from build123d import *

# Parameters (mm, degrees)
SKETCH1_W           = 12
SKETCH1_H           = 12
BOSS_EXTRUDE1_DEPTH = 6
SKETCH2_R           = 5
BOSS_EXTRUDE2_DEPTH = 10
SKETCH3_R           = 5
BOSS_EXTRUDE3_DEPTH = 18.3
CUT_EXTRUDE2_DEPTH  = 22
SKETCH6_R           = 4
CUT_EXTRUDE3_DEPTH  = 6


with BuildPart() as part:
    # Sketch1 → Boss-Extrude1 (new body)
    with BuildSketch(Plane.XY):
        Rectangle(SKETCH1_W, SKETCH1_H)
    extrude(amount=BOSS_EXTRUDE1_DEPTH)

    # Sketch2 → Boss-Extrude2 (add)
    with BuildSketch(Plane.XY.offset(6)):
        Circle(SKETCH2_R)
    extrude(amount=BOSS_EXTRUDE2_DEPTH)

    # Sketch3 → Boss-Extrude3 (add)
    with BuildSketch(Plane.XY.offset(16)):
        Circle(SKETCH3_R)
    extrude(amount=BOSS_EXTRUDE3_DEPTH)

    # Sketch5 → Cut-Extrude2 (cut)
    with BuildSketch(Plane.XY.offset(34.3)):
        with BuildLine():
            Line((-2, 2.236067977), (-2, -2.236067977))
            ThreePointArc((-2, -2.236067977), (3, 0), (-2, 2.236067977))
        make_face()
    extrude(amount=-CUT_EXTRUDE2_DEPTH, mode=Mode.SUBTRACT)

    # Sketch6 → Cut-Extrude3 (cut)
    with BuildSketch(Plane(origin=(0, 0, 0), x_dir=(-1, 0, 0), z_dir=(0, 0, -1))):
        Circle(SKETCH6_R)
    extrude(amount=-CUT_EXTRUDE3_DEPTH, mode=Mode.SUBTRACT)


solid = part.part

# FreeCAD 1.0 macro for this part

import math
import FreeCAD as App
import Part
import Sketcher

V = App.Vector


def add_polygon(sketch, points):
    """Adds a closed chain of lines whose ends are joined by coincident constraints."""
    first, n = sketch.GeometryCount, len(points)
    for a, b in zip(points, points[1:] + points[:1]):
        sketch.addGeometry(Part.LineSegment(App.Vector(*a, 0), App.Vector(*b, 0)), False)
    for i in range(n):
        sketch.addConstraint(Sketcher.Constraint("Coincident", first + i, 2, first + (i + 1) % n, 1))

doc = App.newDocument("Part")
params = doc.addObject("Spreadsheet::Sheet", "Params")
for row, (alias, value) in enumerate([
    ("sketch1_width", "12 mm"),
    ("pad1_length", "6 mm"),
    ("sketch2_diameter", "10 mm"),
    ("pad2_length", "10 mm"),
    ("sketch3_diameter", "10 mm"),
    ("pad3_length", "18.3 mm"),
    ("sketch4_radius", "3 mm"),
    ("pocket1_length", "22 mm"),
    ("sketch5_diameter", "8 mm"),
    ("pocket2_length", "6 mm"),
], start=1):
    params.set(f"A{row}", alias)
    params.set(f"B{row}", "=" + value)
    params.setAlias(f"B{row}", alias)

body = doc.addObject("PartDesign::Body", "Body")

# Sketch on XY plane
sketch1 = body.newObject("Sketcher::SketchObject", "Sketch")
sketch1.AttachmentSupport = (doc.getObject("XY_Plane"), [""])
sketch1.MapMode = "FlatFace"
add_polygon(sketch1, [(-6, 6), (-6, -6), (6, -6), (6, 6)])  # lines 0-3
sketch1.addConstraint(Sketcher.Constraint("Vertical", 0))
sketch1.addConstraint(Sketcher.Constraint("Horizontal", 1))
sketch1.addConstraint(Sketcher.Constraint("Vertical", 2))
sketch1.addConstraint(Sketcher.Constraint("Horizontal", 3))
sketch1.addConstraint(Sketcher.Constraint("Symmetric", 0, 2, 2, 2, -1, 1))
sketch1.addConstraint(Sketcher.Constraint("Equal", 3, 0))
sketch1.addConstraint(Sketcher.Constraint("DistanceX", 1, 1, 1, 2, 12.0))
sketch1.setExpression("Constraints[10]", "Params.sketch1_width")
pad1 = body.newObject("PartDesign::Pad", "Pad")
pad1.Profile = sketch1
pad1.setExpression("Length", "Params.pad1_length")

# Sketch on XY plane
sketch2 = body.newObject("Sketcher::SketchObject", "Sketch001")
sketch2.AttachmentSupport = (doc.getObject("XY_Plane"), [""])
sketch2.MapMode = "FlatFace"
sketch2.AttachmentOffset = App.Placement(V(0, 0, 6), App.Rotation())
sketch2.addGeometry(Part.Circle(V(0, 0, 0), V(0, 0, 1), 5), False)
sketch2.addConstraint(Sketcher.Constraint("Coincident", 0, 3, -1, 1))
sketch2.addConstraint(Sketcher.Constraint("Diameter", 0, 10.0))
sketch2.setExpression("Constraints[1]", "Params.sketch2_diameter")
pad2 = body.newObject("PartDesign::Pad", "Pad001")
pad2.Profile = sketch2
pad2.setExpression("Length", "Params.pad2_length")

# Sketch on XY plane
sketch3 = body.newObject("Sketcher::SketchObject", "Sketch002")
sketch3.AttachmentSupport = (doc.getObject("XY_Plane"), [""])
sketch3.MapMode = "FlatFace"
sketch3.AttachmentOffset = App.Placement(V(0, 0, 16), App.Rotation())
sketch3.addGeometry(Part.Circle(V(0, 0, 0), V(0, 0, 1), 5), False)
sketch3.addConstraint(Sketcher.Constraint("Coincident", 0, 3, -1, 1))
sketch3.addConstraint(Sketcher.Constraint("Diameter", 0, 10.0))
sketch3.setExpression("Constraints[1]", "Params.sketch3_diameter")
pad3 = body.newObject("PartDesign::Pad", "Pad002")
pad3.Profile = sketch3
pad3.setExpression("Length", "Params.pad3_length")

# Sketch on XY plane
sketch4 = body.newObject("Sketcher::SketchObject", "Sketch003")
sketch4.AttachmentSupport = (doc.getObject("XY_Plane"), [""])
sketch4.MapMode = "FlatFace"
sketch4.AttachmentOffset = App.Placement(V(0, 0, 34.3), App.Rotation())
sketch4.addGeometry(Part.LineSegment(V(-2, 2.236068, 0), V(-2, -2.236068, 0)), False)
sketch4.addGeometry(Part.ArcOfCircle(Part.Circle(V(0, 0, 0), V(0, 0, 1), 3), math.radians(-131.810315), math.radians(131.810315)), False)
sketch4.addConstraint(Sketcher.Constraint("Coincident", 0, 1, 1, 2))
sketch4.addConstraint(Sketcher.Constraint("Coincident", 1, 1, 0, 2))
sketch4.addConstraint(Sketcher.Constraint("Vertical", 0))
sketch4.addConstraint(Sketcher.Constraint("Coincident", 1, 3, -1, 1))
sketch4.addConstraint(Sketcher.Constraint("Radius", 1, 3.0))
sketch4.addConstraint(Sketcher.Constraint("DistanceX", 0, 1, -1, 1, 2.0))
sketch4.setExpression("Constraints[4]", "Params.sketch4_radius")
pocket1 = body.newObject("PartDesign::Pocket", "Pocket")
pocket1.Profile = sketch4
pocket1.setExpression("Length", "Params.pocket1_length")

# Sketch on XY plane
sketch5 = body.newObject("Sketcher::SketchObject", "Sketch004")
sketch5.AttachmentSupport = (doc.getObject("XY_Plane"), [""])
sketch5.MapMode = "FlatFace"
sketch5.addGeometry(Part.Circle(V(0, 0, 0), V(0, 0, 1), 4), False)
sketch5.addConstraint(Sketcher.Constraint("Coincident", 0, 3, -1, 1))
sketch5.addConstraint(Sketcher.Constraint("Diameter", 0, 8.0))
sketch5.setExpression("Constraints[1]", "Params.sketch5_diameter")
pocket2 = body.newObject("PartDesign::Pocket", "Pocket001")
pocket2.Profile = sketch5
pocket2.setExpression("Length", "Params.pocket2_length")
pocket2.Reversed = True

doc.recompute()
